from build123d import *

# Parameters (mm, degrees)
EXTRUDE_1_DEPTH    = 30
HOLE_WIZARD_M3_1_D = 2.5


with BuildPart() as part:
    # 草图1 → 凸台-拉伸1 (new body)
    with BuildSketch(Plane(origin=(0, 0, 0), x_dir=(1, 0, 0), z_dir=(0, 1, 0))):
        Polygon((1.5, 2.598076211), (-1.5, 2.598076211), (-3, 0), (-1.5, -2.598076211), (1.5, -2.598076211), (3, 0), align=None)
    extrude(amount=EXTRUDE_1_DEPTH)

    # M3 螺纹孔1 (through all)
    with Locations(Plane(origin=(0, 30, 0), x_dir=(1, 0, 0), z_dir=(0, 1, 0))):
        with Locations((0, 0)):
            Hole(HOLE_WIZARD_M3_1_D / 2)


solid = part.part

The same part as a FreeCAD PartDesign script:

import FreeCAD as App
import Part
import Sketcher
Q = App.Units.Quantity

doc = App.newDocument("Part")
body = doc.addObject("PartDesign::Body", "Body")

# Sketch on XZ plane
sketch1 = body.newObject("Sketcher::SketchObject", "Sketch")
sketch1.AttachmentSupport = (doc.getObject("XZ_Plane"), [""])
sketch1.MapMode = "FlatFace"
sketch1.addGeometry(Part.LineSegment(App.Vector(1.5, -2.6, 0), App.Vector(-1.5, -2.6, 0)), False)
sketch1.addGeometry(Part.LineSegment(App.Vector(-1.5, -2.6, 0), App.Vector(-3, 0, 0)), False)
sketch1.addGeometry(Part.LineSegment(App.Vector(-3, 0, 0), App.Vector(-1.5, 2.6, 0)), False)
sketch1.addGeometry(Part.LineSegment(App.Vector(-1.5, 2.6, 0), App.Vector(1.5, 2.6, 0)), False)
sketch1.addGeometry(Part.LineSegment(App.Vector(1.5, 2.6, 0), App.Vector(3, 0, 0)), False)
sketch1.addGeometry(Part.LineSegment(App.Vector(3, 0, 0), App.Vector(1.5, -2.6, 0)), False)
sketch1.addConstraint(Sketcher.Constraint("Coincident", 0, 2, 1, 1))
sketch1.addConstraint(Sketcher.Constraint("Coincident", 1, 2, 2, 1))
sketch1.addConstraint(Sketcher.Constraint("Coincident", 2, 2, 3, 1))
sketch1.addConstraint(Sketcher.Constraint("Coincident", 3, 2, 4, 1))
sketch1.addConstraint(Sketcher.Constraint("Coincident", 4, 2, 5, 1))
sketch1.addConstraint(Sketcher.Constraint("Coincident", 5, 2, 0, 1))
sketch1.addConstraint(Sketcher.Constraint("Horizontal", 0))
sketch1.addConstraint(Sketcher.Constraint("Horizontal", 3))
sketch1.addConstraint(Sketcher.Constraint("Symmetric", 0, 2, 3, 2, -1, 1))
sketch1.addConstraint(Sketcher.Constraint("Symmetric", 1, 2, 4, 2, -1, 1))
sketch1.addConstraint(Sketcher.Constraint("PointOnObject", 1, 2, -1))
sketch1.addConstraint(Sketcher.Constraint("Parallel", 2, 5))
sketch1.addConstraint(Sketcher.Constraint("Vertical", 0, 2, 2, 2))
sketch1.addConstraint(Sketcher.Constraint("DistanceX", 0, 2, 0, 1, 3.0))
sketch1.addConstraint(Sketcher.Constraint("Angle", 1, Q("120 deg")))
sketch1.addConstraint(Sketcher.Constraint("Distance", 1, 3.0))
pad1 = body.newObject("PartDesign::Pad", "Pad")
pad1.Profile = sketch1
pad1.Length = 30
pad1.Reversed = True

# Sketch on XZ plane
sketch2 = body.newObject("Sketcher::SketchObject", "Sketch001")
sketch2.AttachmentSupport = (doc.getObject("XZ_Plane"), [""])
sketch2.MapMode = "FlatFace"
sketch2.AttachmentOffset = App.Placement(App.Vector(0, 0, -30), App.Rotation())
sketch2.addGeometry(Part.Circle(App.Vector(0, 0, 0), App.Vector(0, 0, 1), 1.2), False)
sketch2.addConstraint(Sketcher.Constraint("Coincident", 0, 3, -1, 1))
sketch2.addConstraint(Sketcher.Constraint("Diameter", 0, 2.5))
doc.recompute()
hole = body.newObject("PartDesign::Hole", "Hole")
hole.Profile = sketch2
hole.ThreadType = "None"
hole.Diameter = 2.5
hole.DepthType = "ThroughAll"
hole.Reversed = True

doc.recompute()
